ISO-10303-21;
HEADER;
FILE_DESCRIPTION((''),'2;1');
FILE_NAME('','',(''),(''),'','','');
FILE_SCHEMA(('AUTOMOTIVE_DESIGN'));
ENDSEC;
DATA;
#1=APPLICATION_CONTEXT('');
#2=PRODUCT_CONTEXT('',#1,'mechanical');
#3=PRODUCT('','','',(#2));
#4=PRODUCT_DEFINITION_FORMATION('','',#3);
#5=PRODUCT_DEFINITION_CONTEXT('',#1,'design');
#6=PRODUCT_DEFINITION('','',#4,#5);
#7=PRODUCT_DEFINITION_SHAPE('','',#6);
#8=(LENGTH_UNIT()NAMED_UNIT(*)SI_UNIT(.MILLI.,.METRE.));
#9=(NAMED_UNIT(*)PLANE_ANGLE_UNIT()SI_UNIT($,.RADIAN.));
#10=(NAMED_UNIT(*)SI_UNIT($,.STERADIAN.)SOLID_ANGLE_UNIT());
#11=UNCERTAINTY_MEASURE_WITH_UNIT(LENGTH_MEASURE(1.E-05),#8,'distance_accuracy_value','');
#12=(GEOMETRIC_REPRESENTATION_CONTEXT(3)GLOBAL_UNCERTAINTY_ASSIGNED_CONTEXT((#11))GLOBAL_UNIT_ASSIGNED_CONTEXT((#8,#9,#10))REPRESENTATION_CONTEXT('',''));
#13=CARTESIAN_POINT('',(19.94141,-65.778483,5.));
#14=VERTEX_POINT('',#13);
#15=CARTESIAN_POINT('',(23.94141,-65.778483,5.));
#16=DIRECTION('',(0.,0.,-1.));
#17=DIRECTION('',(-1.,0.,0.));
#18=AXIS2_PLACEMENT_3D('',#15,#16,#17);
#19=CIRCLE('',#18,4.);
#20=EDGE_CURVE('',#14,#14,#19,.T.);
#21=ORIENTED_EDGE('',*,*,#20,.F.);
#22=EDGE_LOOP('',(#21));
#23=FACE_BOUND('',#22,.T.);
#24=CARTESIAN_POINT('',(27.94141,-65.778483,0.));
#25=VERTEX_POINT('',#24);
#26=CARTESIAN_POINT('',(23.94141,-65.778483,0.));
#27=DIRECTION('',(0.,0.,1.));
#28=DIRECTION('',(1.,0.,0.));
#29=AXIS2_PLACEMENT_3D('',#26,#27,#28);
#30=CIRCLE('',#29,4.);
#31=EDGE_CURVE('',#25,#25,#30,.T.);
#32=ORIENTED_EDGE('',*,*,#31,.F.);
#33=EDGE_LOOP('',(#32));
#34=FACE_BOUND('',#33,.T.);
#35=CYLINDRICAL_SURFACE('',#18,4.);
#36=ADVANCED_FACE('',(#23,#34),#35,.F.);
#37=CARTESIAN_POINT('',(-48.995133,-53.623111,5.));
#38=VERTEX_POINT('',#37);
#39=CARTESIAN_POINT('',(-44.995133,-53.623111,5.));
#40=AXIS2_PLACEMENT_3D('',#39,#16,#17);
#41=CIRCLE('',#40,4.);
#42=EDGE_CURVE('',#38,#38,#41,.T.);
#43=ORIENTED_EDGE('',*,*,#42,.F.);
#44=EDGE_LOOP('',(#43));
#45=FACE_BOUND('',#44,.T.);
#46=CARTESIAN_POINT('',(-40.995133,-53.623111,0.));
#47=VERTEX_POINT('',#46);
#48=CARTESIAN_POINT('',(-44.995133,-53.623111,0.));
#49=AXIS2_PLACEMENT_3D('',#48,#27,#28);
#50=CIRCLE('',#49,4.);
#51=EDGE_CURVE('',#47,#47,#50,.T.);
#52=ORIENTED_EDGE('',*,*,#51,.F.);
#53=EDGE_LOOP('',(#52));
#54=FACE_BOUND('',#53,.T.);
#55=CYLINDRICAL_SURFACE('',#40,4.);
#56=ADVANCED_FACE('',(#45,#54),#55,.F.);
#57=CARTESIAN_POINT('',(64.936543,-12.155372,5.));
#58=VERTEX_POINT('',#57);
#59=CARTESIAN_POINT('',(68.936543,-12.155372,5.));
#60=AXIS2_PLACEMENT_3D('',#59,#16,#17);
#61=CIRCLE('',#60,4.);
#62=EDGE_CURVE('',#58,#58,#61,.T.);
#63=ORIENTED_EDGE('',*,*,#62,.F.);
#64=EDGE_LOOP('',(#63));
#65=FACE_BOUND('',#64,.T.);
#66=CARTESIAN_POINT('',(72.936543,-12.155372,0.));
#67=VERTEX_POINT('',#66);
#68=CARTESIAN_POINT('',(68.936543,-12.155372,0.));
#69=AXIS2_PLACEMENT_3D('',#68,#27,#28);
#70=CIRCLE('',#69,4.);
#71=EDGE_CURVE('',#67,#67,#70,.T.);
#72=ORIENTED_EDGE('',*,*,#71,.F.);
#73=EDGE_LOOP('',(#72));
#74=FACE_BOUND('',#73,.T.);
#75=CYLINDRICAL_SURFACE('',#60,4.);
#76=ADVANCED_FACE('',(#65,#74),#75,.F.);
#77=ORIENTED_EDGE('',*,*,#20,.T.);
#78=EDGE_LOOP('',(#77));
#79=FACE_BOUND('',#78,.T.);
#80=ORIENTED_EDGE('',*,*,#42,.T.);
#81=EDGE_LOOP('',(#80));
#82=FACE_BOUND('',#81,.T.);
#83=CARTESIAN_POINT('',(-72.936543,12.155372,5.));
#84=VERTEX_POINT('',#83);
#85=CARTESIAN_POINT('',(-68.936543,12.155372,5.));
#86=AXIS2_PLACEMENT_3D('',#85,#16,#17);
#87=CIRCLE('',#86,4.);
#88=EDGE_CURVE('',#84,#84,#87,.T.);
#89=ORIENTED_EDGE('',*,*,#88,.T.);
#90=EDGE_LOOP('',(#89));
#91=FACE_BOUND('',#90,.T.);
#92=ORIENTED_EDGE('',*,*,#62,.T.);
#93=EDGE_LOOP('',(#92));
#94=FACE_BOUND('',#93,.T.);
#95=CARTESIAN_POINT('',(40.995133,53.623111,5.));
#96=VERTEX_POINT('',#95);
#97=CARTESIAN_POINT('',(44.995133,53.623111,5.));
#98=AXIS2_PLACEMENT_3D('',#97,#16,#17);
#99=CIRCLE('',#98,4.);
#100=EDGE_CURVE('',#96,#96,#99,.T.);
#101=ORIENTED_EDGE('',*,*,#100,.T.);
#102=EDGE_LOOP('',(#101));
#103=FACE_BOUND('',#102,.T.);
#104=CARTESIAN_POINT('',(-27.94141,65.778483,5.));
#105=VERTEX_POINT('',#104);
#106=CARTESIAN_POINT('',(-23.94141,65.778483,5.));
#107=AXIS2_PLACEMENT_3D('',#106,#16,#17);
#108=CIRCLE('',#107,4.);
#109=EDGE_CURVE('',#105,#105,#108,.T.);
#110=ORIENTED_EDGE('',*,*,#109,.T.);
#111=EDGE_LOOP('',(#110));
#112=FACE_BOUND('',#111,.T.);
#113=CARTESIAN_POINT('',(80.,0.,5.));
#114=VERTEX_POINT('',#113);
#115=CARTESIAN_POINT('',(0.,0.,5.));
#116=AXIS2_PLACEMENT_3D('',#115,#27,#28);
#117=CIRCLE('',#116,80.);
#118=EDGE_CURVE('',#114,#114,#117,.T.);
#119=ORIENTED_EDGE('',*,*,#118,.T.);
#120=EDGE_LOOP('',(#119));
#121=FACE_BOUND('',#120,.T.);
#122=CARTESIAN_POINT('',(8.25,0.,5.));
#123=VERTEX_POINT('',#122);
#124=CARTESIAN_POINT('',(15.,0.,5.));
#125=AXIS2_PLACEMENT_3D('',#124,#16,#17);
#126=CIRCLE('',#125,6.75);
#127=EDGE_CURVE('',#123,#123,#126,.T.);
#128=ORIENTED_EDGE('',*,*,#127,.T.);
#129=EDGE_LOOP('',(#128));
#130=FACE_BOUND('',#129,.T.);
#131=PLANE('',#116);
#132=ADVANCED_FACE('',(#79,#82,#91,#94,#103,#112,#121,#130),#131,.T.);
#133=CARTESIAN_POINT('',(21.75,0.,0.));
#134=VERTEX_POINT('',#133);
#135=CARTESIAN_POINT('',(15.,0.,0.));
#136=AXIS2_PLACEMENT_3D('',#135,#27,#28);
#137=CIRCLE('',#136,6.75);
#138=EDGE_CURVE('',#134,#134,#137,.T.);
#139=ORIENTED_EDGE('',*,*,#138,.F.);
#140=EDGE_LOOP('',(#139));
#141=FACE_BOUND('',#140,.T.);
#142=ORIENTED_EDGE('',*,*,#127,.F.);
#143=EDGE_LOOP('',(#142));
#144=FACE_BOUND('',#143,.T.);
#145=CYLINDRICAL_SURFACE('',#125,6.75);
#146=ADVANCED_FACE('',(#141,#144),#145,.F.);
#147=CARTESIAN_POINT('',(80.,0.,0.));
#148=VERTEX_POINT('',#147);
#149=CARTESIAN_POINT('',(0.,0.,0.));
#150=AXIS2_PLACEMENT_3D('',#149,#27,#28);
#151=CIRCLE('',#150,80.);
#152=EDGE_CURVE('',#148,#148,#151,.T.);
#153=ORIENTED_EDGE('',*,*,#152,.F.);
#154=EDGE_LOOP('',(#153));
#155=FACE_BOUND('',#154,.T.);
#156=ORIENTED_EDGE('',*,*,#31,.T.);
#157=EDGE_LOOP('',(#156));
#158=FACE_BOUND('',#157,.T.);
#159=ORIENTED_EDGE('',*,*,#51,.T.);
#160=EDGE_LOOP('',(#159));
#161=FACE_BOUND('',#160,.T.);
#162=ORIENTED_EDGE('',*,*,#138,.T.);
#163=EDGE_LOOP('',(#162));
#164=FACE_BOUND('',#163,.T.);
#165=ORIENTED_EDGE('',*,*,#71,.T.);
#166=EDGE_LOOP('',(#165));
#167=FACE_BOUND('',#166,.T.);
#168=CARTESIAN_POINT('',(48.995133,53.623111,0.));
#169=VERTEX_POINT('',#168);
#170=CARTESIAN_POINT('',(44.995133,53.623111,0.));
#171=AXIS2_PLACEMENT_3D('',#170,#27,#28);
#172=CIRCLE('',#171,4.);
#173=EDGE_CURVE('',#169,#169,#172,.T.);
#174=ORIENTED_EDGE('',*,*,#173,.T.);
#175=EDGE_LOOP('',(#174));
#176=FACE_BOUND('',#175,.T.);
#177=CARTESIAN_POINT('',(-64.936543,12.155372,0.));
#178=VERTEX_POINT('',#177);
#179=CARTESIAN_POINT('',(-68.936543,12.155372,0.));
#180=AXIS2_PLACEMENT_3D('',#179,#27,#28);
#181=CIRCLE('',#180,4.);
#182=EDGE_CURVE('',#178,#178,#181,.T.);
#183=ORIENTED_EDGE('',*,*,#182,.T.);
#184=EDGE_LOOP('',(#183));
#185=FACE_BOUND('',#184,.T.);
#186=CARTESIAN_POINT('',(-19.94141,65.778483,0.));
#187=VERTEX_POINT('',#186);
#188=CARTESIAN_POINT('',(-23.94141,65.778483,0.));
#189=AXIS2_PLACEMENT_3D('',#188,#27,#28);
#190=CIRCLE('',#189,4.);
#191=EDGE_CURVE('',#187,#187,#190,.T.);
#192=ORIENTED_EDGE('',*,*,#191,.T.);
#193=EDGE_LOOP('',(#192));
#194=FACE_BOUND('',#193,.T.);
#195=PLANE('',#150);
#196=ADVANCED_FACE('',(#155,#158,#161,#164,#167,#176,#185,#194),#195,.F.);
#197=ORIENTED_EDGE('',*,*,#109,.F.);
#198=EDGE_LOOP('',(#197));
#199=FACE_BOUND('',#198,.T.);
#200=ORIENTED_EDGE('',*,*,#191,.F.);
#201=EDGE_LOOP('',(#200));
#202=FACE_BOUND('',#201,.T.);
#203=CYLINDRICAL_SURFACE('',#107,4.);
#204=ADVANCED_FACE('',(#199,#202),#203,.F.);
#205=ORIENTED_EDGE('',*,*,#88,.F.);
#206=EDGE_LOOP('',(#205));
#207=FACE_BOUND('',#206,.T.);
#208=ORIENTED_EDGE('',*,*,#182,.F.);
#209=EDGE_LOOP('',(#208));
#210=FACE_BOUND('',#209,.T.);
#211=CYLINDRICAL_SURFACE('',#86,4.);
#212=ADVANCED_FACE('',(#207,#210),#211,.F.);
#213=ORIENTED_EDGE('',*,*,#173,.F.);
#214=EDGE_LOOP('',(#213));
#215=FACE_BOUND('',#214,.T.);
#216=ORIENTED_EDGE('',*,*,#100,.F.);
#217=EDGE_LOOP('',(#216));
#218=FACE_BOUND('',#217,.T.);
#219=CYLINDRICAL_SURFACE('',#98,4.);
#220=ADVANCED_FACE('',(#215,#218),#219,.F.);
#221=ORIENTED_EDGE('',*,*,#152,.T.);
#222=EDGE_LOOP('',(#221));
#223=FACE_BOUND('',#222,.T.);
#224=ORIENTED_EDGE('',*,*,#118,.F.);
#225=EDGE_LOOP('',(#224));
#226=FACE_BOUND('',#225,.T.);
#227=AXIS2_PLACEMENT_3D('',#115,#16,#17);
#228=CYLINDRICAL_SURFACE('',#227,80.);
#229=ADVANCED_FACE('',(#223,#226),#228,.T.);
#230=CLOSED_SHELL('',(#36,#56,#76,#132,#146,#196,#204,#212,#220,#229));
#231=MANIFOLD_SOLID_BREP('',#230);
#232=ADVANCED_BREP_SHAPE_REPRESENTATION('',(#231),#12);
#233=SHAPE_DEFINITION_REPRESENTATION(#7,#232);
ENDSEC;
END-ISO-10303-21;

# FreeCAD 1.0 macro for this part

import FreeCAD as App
import Part
import Sketcher

doc = App.newDocument("Part")
body = doc.addObject("PartDesign::Body", "Body")

# Sketch on XY plane
sketch1 = body.newObject("Sketcher::SketchObject", "Sketch")
sketch1.AttachmentSupport = (doc.getObject("XY_Plane"), [""])
sketch1.MapMode = "FlatFace"
sketch1.addGeometry(Part.Circle(App.Vector(0, 0, 0), App.Vector(0, 0, 1), 80), False)
sketch1.addConstraint(Sketcher.Constraint("Coincident", 0, 3, -1, 1))
sketch1.addConstraint(Sketcher.Constraint("Diameter", 0, 160.0))
pad1 = body.newObject("PartDesign::Pad", "Pad")
pad1.Profile = sketch1
pad1.Length = 5

# Sketch on XY plane
sketch2 = body.newObject("Sketcher::SketchObject", "Sketch001")
sketch2.AttachmentSupport = (doc.getObject("XY_Plane"), [""])
sketch2.MapMode = "FlatFace"
sketch2.addGeometry(Part.Circle(App.Vector(15, 0, 0), App.Vector(0, 0, 1), 6.75), False)
sketch2.addConstraint(Sketcher.Constraint("PointOnObject", 0, 3, -1))
sketch2.addConstraint(Sketcher.Constraint("Diameter", 0, 13.5))
sketch2.addConstraint(Sketcher.Constraint("DistanceX", -1, 1, 0, 3, 15.0))
pocket1 = body.newObject("PartDesign::Pocket", "Pocket")
pocket1.Profile = sketch2
pocket1.Type = "ThroughAll"
pocket1.Midplane = True

# Sketch on XY plane
sketch3 = body.newObject("Sketcher::SketchObject", "Sketch002")
sketch3.AttachmentSupport = (doc.getObject("XY_Plane"), [""])
sketch3.MapMode = "FlatFace"
sketch3.addGeometry(Part.Circle(App.Vector(-23.94141, 65.778483, 0), App.Vector(0, 0, 1), 4), False)
sketch3.addGeometry(Part.Circle(App.Vector(-68.936543, 12.155372, 0), App.Vector(0, 0, 1), 4), False)
sketch3.addGeometry(Part.Circle(App.Vector(-44.995133, -53.623111, 0), App.Vector(0, 0, 1), 4), False)
sketch3.addGeometry(Part.Circle(App.Vector(23.94141, -65.778483, 0), App.Vector(0, 0, 1), 4), False)
sketch3.addGeometry(Part.Circle(App.Vector(68.936543, -12.155372, 0), App.Vector(0, 0, 1), 4), False)
sketch3.addGeometry(Part.Circle(App.Vector(44.995133, 53.623111, 0), App.Vector(0, 0, 1), 4), False)
sketch3.addConstraint(Sketcher.Constraint("Equal", 0, 1))
sketch3.addConstraint(Sketcher.Constraint("Equal", 1, 2))
sketch3.addConstraint(Sketcher.Constraint("Equal", 2, 3))
sketch3.addConstraint(Sketcher.Constraint("Equal", 3, 4))
sketch3.addConstraint(Sketcher.Constraint("Equal", 4, 5))
sketch3.addConstraint(Sketcher.Constraint("Symmetric", 0, 3, 3, 3, -1, 1))
sketch3.addConstraint(Sketcher.Constraint("Symmetric", 1, 3, 4, 3, -1, 1))
sketch3.addConstraint(Sketcher.Constraint("Symmetric", 2, 3, 5, 3, -1, 1))
sketch3.addConstraint(Sketcher.Constraint("Diameter", 0, 8.0))
sketch3.addConstraint(Sketcher.Constraint("DistanceX", 0, 3, -1, 1, 23.94141))
sketch3.addConstraint(Sketcher.Constraint("DistanceY", 2, 3, -1, 1, 53.623111))
sketch3.addConstraint(Sketcher.Constraint("DistanceY", 1, 3, 0, 3, 53.623111))
sketch3.addConstraint(Sketcher.Constraint("DistanceX", 1, 3, 2, 3, 23.94141))
sketch3.addConstraint(Sketcher.Constraint("DistanceY", 2, 3, 4, 3, 41.467739))
sketch3.addConstraint(Sketcher.Constraint("DistanceX", 1, 3, -1, 1, 68.936543))
pocket2 = body.newObject("PartDesign::Pocket", "Pocket001")
pocket2.Profile = sketch3
pocket2.Type = "ThroughAll"
pocket2.Midplane = True

doc.recompute()
